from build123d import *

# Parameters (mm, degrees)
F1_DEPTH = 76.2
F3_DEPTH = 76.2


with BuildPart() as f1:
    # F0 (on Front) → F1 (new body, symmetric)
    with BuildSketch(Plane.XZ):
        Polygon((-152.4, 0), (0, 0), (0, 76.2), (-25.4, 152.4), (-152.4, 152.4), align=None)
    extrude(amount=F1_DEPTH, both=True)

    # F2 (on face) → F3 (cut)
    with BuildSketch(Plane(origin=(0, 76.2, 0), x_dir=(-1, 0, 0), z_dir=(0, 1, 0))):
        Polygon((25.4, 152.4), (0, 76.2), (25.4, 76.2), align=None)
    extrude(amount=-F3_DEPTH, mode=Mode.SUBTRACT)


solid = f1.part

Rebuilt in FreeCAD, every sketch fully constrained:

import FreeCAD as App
import Part
import Sketcher
from FreeCAD import Vector
Q = App.Units.Quantity

doc = App.newDocument("Part")
body = doc.addObject("PartDesign::Body", "Body")

sketch1 = body.newObject("Sketcher::SketchObject", "Sketch")
sketch1.AttachmentSupport = (doc.getObject("XZ_Plane"), [""])
sketch1.MapMode = "FlatFace"
sketch1.addGeometry([
    Part.LineSegment(Vector(-152.4, 0, 0), Vector(0, 0, 0)),
    Part.LineSegment(Vector(0, 0, 0), Vector(0, 76.2, 0)),
    Part.LineSegment(Vector(0, 76.2, 0), Vector(-25.4, 152.4, 0)),
    Part.LineSegment(Vector(-25.4, 152.4, 0), Vector(-152.4, 152.4, 0)),
    Part.LineSegment(Vector(-152.4, 152.4, 0), Vector(-152.4, 0, 0)),
], False)
sketch1.addConstraint([
    Sketcher.Constraint("Coincident", 0, 2, 1, 1),
    Sketcher.Constraint("Coincident", 1, 2, 2, 1),
    Sketcher.Constraint("Coincident", 2, 2, 3, 1),
    Sketcher.Constraint("Coincident", 3, 2, 4, 1),
    Sketcher.Constraint("Coincident", 4, 2, 0, 1),
    Sketcher.Constraint("Horizontal", 0),
    Sketcher.Constraint("Vertical", 1),
    Sketcher.Constraint("Horizontal", 3),
    Sketcher.Constraint("Vertical", 4),
    Sketcher.Constraint("Coincident", 0, 2, -1, 1),
    Sketcher.Constraint("Equal", 0, 4),
    Sketcher.Constraint("DistanceX", 0, 1, 0, 2, Q("6 in")),
    Sketcher.Constraint("DistanceX", 3, 2, 3, 1, Q("5 in")),
    Sketcher.Constraint("DistanceY", 1, 1, 1, 2, Q("3 in")),
])
pad1 = body.newObject("PartDesign::Pad", "Pad")
pad1.Profile = sketch1
pad1.Length = Q("6 in")
pad1.Midplane = True

sketch2 = body.newObject("Sketcher::SketchObject", "Sketch001")
sketch2.AttachmentSupport = (doc.getObject("XZ_Plane"), [""])
sketch2.MapMode = "FlatFace"
sketch2.AttachmentOffset = App.Placement(Vector(0, 0, -3 * 25.4), App.Rotation())
sketch2.addGeometry([
    Part.LineSegment(Vector(-25.4, 152.4, 0), Vector(0, 76.2, 0)),
    Part.LineSegment(Vector(0, 76.2, 0), Vector(-25.4, 76.2, 0)),
    Part.LineSegment(Vector(-25.4, 76.2, 0), Vector(-25.4, 152.4, 0)),
], False)
sketch2.addConstraint([
    Sketcher.Constraint("Coincident", 0, 2, 1, 1),
    Sketcher.Constraint("Coincident", 1, 2, 2, 1),
    Sketcher.Constraint("Coincident", 2, 2, 0, 1),
    Sketcher.Constraint("Horizontal", 1),
    Sketcher.Constraint("Vertical", 2),
    Sketcher.Constraint("PointOnObject", 0, 2, -2),
    Sketcher.Constraint("DistanceX", 1, 2, 1, 1, Q("1 in")),
    Sketcher.Constraint("DistanceY", 2, 1, 2, 2, Q("3 in")),
    Sketcher.Constraint("DistanceY", -1, 1, 0, 2, Q("3 in")),
])
pocket1 = body.newObject("PartDesign::Pocket", "Pocket")
pocket1.Profile = sketch2
pocket1.Length = Q("3 in")
pocket1.Reversed = True

doc.recompute()
